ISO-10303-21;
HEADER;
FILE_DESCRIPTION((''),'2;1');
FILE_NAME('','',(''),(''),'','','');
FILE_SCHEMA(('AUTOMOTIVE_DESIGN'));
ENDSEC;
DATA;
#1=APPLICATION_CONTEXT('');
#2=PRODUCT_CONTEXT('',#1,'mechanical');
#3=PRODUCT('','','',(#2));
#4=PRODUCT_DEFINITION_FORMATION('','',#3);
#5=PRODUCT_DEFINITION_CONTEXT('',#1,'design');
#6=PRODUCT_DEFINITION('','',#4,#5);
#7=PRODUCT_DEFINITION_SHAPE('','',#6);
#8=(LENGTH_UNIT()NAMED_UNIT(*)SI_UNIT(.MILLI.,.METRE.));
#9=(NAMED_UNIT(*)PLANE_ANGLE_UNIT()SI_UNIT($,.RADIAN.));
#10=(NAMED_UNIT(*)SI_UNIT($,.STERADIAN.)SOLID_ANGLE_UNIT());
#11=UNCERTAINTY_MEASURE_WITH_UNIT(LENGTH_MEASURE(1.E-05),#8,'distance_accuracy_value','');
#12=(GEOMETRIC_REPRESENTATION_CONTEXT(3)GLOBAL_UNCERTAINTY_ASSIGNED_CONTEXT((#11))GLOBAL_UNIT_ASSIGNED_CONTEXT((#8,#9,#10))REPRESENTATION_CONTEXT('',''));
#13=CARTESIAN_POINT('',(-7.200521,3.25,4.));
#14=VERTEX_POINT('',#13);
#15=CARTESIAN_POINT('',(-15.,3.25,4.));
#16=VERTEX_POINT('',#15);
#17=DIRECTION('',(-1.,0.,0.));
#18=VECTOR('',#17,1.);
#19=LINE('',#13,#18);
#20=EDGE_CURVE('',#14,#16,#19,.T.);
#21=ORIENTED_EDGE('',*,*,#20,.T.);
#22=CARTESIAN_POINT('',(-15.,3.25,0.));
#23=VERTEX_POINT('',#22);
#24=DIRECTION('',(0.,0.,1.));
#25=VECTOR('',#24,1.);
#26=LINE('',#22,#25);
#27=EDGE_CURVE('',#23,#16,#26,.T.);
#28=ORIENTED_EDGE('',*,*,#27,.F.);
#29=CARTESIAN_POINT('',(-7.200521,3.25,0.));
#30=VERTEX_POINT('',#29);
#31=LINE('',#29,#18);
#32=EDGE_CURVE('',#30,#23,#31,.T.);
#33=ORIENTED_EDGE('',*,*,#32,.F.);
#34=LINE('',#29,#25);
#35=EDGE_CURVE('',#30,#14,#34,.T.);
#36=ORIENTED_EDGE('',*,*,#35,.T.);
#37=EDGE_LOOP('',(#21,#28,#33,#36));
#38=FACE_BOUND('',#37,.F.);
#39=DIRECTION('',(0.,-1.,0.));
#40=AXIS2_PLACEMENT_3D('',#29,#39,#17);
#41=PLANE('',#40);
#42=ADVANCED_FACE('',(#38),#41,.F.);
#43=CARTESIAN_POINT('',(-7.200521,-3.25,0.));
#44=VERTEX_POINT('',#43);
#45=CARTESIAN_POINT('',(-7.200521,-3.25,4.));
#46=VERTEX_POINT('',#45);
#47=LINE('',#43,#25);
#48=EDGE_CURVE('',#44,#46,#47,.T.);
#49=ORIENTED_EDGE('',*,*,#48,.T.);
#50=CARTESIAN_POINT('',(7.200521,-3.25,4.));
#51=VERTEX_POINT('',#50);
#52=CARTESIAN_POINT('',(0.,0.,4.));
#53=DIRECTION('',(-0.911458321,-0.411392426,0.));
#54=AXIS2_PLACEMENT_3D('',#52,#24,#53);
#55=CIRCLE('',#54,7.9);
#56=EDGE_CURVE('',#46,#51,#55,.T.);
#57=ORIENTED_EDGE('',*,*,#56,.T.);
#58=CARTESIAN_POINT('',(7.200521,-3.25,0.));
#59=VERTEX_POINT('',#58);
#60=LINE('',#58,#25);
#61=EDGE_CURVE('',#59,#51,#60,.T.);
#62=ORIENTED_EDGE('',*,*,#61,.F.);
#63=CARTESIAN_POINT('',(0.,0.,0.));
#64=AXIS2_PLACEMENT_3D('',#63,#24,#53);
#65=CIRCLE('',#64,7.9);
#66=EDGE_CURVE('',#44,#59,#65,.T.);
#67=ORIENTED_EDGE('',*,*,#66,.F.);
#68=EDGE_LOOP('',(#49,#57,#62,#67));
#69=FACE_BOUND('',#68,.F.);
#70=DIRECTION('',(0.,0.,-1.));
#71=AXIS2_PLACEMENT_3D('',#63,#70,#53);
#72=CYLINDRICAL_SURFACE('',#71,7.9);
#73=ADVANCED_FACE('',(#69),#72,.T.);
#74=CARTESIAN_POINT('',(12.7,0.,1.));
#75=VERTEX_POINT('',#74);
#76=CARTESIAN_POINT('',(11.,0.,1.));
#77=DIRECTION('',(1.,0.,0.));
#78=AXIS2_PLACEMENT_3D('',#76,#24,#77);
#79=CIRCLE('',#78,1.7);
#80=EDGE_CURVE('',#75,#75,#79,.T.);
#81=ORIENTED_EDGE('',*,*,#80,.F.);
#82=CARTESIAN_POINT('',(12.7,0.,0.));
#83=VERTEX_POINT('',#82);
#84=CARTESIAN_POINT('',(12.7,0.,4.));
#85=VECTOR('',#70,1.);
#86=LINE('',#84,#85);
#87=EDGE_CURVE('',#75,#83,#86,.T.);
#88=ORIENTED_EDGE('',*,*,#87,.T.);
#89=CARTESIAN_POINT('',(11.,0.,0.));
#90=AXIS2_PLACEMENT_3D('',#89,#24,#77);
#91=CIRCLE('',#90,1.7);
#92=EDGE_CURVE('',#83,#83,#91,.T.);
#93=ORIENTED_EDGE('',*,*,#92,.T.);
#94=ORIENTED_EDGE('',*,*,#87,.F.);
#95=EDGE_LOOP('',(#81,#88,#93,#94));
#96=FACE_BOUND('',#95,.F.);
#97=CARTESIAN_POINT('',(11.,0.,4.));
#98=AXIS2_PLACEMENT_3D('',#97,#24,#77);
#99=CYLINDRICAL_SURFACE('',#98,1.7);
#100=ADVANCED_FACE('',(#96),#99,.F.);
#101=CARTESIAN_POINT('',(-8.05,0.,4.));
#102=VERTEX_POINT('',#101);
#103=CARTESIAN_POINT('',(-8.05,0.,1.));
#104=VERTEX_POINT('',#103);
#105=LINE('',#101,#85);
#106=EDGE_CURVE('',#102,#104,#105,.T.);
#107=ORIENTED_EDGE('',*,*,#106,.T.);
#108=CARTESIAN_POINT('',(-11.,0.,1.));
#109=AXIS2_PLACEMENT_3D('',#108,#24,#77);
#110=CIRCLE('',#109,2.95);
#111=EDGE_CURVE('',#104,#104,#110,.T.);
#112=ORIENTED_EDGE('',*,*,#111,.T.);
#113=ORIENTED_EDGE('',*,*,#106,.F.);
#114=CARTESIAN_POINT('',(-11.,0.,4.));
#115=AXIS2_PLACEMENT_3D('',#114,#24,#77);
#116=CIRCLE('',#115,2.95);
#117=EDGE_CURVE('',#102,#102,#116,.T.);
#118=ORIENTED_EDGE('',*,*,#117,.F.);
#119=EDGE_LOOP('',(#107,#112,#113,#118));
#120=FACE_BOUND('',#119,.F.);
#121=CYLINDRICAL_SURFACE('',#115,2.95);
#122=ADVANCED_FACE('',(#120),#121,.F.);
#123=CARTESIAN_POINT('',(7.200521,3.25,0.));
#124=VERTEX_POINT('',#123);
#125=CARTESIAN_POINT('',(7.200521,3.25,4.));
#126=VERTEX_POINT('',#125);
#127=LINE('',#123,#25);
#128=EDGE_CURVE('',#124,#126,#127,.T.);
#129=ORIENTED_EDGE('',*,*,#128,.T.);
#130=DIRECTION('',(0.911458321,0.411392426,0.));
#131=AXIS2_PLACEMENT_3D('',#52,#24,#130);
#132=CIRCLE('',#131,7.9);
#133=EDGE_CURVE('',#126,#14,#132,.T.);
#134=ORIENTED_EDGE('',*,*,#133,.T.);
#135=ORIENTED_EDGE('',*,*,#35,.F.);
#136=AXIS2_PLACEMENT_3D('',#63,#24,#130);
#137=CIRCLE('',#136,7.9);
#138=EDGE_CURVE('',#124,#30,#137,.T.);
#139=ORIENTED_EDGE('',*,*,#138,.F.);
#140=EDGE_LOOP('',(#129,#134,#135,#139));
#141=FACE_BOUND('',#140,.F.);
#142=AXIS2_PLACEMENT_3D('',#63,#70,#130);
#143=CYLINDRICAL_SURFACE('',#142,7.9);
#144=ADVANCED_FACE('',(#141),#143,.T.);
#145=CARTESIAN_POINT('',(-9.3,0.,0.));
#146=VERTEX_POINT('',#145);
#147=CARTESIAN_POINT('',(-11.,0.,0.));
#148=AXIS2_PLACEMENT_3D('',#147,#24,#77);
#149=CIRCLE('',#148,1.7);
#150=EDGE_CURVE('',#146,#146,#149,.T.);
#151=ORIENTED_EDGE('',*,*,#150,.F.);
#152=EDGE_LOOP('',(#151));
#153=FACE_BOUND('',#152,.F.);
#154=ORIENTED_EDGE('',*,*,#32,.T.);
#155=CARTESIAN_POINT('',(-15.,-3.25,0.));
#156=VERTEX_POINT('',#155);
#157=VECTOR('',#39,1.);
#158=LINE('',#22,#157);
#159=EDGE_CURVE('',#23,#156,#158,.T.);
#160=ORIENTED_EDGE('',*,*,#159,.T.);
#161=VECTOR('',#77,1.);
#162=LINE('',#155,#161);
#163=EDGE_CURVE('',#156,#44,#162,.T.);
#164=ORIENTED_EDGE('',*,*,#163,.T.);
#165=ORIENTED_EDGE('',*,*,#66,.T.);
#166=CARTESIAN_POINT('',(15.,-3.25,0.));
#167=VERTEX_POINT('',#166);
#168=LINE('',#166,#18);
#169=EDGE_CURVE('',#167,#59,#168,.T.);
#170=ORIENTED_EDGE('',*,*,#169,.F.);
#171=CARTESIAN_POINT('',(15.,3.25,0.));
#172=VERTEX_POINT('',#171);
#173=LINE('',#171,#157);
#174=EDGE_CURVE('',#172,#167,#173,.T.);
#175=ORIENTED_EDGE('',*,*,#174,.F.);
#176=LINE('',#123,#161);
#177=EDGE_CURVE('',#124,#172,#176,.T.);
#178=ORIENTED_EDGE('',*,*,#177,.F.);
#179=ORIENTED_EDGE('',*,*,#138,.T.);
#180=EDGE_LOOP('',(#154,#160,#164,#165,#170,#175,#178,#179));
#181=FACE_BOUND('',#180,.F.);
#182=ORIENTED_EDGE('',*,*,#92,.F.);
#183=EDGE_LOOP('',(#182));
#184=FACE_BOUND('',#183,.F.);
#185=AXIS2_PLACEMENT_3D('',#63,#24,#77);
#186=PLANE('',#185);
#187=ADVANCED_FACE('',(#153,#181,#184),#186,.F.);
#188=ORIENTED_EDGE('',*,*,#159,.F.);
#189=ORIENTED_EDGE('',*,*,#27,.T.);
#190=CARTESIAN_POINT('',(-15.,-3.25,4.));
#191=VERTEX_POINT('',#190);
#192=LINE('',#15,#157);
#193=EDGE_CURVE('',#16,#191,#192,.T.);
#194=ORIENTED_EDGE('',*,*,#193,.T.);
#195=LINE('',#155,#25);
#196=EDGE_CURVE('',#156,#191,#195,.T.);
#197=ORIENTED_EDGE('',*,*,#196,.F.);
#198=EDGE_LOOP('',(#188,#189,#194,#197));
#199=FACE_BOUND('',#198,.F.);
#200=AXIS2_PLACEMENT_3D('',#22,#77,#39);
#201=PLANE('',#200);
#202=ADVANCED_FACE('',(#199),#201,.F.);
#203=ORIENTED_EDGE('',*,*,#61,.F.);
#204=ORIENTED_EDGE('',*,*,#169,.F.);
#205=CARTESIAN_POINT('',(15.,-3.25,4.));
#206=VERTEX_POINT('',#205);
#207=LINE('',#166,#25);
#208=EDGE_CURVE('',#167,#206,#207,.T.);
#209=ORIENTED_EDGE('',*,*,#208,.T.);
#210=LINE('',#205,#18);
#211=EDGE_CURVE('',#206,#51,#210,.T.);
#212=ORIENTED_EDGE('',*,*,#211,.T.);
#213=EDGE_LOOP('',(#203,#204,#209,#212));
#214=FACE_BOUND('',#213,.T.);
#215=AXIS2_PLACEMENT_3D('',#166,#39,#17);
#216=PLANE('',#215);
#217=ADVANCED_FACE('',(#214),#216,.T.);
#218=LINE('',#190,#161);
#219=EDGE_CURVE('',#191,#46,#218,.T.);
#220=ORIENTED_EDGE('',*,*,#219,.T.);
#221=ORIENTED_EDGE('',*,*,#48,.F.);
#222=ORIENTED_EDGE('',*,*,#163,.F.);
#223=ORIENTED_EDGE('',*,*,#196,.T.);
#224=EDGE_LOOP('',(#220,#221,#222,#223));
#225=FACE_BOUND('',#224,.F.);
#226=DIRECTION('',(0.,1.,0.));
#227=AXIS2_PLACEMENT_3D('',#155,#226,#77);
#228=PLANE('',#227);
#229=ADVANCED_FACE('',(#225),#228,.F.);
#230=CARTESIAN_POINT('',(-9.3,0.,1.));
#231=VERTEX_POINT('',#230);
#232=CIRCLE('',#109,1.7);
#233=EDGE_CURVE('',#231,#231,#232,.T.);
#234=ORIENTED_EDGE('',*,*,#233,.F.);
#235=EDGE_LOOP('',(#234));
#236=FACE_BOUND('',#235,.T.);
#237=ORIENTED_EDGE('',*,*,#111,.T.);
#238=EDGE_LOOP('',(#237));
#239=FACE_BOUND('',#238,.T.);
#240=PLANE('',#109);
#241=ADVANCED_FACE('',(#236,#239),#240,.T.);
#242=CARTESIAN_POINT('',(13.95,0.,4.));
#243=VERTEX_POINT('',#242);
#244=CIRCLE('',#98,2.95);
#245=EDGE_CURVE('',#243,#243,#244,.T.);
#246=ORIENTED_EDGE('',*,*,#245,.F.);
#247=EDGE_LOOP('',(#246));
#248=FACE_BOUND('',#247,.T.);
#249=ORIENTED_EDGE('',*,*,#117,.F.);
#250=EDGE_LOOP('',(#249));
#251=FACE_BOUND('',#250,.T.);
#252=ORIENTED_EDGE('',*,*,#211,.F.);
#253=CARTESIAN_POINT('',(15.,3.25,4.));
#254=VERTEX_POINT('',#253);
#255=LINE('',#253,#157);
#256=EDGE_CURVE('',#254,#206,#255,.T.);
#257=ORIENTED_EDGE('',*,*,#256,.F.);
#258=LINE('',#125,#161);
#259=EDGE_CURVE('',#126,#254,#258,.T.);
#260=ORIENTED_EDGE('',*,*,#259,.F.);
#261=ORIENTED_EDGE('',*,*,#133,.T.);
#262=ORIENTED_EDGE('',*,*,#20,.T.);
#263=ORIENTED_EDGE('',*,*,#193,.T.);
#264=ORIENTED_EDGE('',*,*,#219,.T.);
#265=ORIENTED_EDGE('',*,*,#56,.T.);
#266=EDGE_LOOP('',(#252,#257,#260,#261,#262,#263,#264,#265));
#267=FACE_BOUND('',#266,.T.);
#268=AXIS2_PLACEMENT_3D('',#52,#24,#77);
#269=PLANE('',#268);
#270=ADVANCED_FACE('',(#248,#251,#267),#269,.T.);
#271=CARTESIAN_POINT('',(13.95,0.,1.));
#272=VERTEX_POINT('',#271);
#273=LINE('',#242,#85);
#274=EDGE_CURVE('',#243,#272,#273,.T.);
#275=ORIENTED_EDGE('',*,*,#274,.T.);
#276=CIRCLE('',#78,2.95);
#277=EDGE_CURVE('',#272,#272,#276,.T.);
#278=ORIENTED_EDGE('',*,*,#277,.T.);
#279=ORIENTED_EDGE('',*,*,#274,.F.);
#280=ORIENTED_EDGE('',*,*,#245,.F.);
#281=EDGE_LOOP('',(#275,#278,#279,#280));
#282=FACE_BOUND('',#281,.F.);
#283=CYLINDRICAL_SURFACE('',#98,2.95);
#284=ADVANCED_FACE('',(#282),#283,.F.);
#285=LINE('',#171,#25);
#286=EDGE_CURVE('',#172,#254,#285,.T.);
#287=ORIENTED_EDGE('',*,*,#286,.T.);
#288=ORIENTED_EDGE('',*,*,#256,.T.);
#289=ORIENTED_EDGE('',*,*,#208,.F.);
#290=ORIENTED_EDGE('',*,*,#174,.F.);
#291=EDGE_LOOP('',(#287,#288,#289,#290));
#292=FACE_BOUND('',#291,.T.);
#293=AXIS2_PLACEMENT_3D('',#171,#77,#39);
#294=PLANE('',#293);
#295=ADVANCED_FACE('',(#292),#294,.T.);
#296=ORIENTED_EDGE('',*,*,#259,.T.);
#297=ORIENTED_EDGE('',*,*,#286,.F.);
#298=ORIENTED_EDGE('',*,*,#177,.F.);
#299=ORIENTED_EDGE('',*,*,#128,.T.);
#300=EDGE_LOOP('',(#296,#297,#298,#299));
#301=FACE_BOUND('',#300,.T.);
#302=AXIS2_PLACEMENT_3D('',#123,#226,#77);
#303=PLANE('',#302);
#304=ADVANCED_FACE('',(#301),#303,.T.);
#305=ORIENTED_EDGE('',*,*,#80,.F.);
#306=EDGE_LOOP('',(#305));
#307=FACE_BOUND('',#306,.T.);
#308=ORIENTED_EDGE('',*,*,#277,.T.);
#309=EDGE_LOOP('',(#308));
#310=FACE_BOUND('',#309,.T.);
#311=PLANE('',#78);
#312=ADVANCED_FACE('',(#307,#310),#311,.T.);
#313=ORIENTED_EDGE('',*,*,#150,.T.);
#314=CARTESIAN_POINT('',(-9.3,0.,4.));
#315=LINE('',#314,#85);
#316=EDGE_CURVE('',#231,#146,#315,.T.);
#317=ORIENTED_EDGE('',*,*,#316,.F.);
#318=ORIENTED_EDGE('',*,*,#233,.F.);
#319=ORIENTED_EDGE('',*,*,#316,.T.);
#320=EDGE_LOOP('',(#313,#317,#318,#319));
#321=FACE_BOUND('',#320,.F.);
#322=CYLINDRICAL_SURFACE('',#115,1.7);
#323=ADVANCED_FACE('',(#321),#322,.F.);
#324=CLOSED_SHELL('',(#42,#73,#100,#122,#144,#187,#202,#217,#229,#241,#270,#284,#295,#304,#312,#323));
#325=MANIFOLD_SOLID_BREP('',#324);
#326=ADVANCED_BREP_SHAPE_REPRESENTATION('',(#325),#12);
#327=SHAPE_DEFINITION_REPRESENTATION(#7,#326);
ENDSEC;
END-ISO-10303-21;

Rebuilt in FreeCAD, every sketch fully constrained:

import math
import FreeCAD as App
import Part
import Sketcher

V = App.Vector
Q = App.Units.Quantity

doc = App.newDocument("Part")
body = doc.addObject("PartDesign::Body", "Body")

# Sketch on XY plane
sketch1 = body.newObject("Sketcher::SketchObject", "Sketch")
sketch1.AttachmentSupport = (doc.getObject("XY_Plane"), [""])
sketch1.MapMode = "FlatFace"
sketch1.addGeometry([
    Part.LineSegment(V(-7, 3, 0), V(-15, 3, 0)),  # 0
    Part.LineSegment(V(-15, 3, 0), V(-15, -3, 0)),  # 1
    Part.LineSegment(V(-15, -3, 0), V(-7, -3, 0)),  # 2
    Part.ArcOfCircle(Part.Circle(V(0, 0, 0), V(0, 0, 1), 8), math.radians(-156), math.radians(-24)),  # 3
    Part.LineSegment(V(7, -3, 0), V(15, -3, 0)),  # 4
    Part.LineSegment(V(15, -3, 0), V(15, 3, 0)),  # 5
    Part.LineSegment(V(15, 3, 0), V(7, 3, 0)),  # 6
    Part.ArcOfCircle(Part.Circle(V(0, 0, 0), V(0, 0, 1), 8), math.radians(24), math.radians(156)),  # 7
], False)
sketch1.addConstraint([
    Sketcher.Constraint("Coincident", 0, 2, 1, 1),
    Sketcher.Constraint("Coincident", 1, 2, 2, 1),
    Sketcher.Constraint("Coincident", 2, 2, 3, 1),
    Sketcher.Constraint("Coincident", 3, 2, 4, 1),
    Sketcher.Constraint("Coincident", 4, 2, 5, 1),
    Sketcher.Constraint("Coincident", 5, 2, 6, 1),
    Sketcher.Constraint("Coincident", 6, 2, 7, 1),
    Sketcher.Constraint("Coincident", 7, 2, 0, 1),
    Sketcher.Constraint("Horizontal", 0),
    Sketcher.Constraint("Vertical", 1),
    Sketcher.Constraint("Horizontal", 2),
    Sketcher.Constraint("Horizontal", 4),
    Sketcher.Constraint("Vertical", 5),
    Sketcher.Constraint("Horizontal", 6),
    Sketcher.Constraint("Coincident", 3, 3, -1, 1),
    Sketcher.Constraint("Coincident", 7, 3, -1, 1),
    Sketcher.Constraint("Equal", 3, 7),
    Sketcher.Constraint("Symmetric", 0, 2, 4, 2, -1, 1),
    Sketcher.Constraint("Horizontal", 2, 2, 3, 2),
    Sketcher.Constraint("Horizontal", 0, 2, 5, 2),
    Sketcher.Constraint("Radius", 3, Q("7.9 mm")),
    Sketcher.Constraint("DistanceY", 1, 2, 1, 1, Q("6.5 mm")),
    Sketcher.Constraint("DistanceX", 0, 2, -1, 1, Q("15 mm")),
])
pad1 = body.newObject("PartDesign::Pad", "Pad")
pad1.Profile = sketch1
pad1.Length = 4

# Sketch on XY plane
sketch2 = body.newObject("Sketcher::SketchObject", "Sketch001")
sketch2.AttachmentSupport = (doc.getObject("XY_Plane"), [""])
sketch2.MapMode = "FlatFace"
sketch2.AttachmentOffset = App.Placement(V(0, 0, 4), App.Rotation())
sketch2.addGeometry([
    Part.Circle(V(11, 0, 0), V(0, 0, 1), 1.7),
    Part.Circle(V(-11, 0, 0), V(0, 0, 1), 1.7),
], False)
sketch2.addConstraint([
    Sketcher.Constraint("Equal", 0, 1),
    Sketcher.Constraint("Symmetric", 0, 3, 1, 3, -1, 1),
    Sketcher.Constraint("PointOnObject", 0, 3, -1),
    Sketcher.Constraint("Diameter", 0, Q("3.4 mm")),
    Sketcher.Constraint("DistanceX", -1, 1, 0, 3, Q("11 mm")),
])
pocket1 = body.newObject("PartDesign::Pocket", "Pocket")
pocket1.Profile = sketch2
pocket1.Type = "ThroughAll"

# Sketch on XY plane
sketch3 = body.newObject("Sketcher::SketchObject", "Sketch002")
sketch3.AttachmentSupport = (doc.getObject("XY_Plane"), [""])
sketch3.MapMode = "FlatFace"
sketch3.AttachmentOffset = App.Placement(V(0, 0, 4), App.Rotation())
sketch3.addGeometry([
    Part.Circle(V(-11, 0, 0), V(0, 0, 1), 3),
    Part.Circle(V(11, 0, 0), V(0, 0, 1), 3),
], False)
sketch3.addConstraint([
    Sketcher.Constraint("Equal", 0, 1),
    Sketcher.Constraint("Symmetric", 0, 3, 1, 3, -1, 1),
    Sketcher.Constraint("PointOnObject", 0, 3, -1),
    Sketcher.Constraint("Diameter", 0, Q("5.9 mm")),
    Sketcher.Constraint("DistanceX", 0, 3, -1, 1, Q("11 mm")),
])
pocket2 = body.newObject("PartDesign::Pocket", "Pocket001")
pocket2.Profile = sketch3
pocket2.Length = 3

doc.recompute()
